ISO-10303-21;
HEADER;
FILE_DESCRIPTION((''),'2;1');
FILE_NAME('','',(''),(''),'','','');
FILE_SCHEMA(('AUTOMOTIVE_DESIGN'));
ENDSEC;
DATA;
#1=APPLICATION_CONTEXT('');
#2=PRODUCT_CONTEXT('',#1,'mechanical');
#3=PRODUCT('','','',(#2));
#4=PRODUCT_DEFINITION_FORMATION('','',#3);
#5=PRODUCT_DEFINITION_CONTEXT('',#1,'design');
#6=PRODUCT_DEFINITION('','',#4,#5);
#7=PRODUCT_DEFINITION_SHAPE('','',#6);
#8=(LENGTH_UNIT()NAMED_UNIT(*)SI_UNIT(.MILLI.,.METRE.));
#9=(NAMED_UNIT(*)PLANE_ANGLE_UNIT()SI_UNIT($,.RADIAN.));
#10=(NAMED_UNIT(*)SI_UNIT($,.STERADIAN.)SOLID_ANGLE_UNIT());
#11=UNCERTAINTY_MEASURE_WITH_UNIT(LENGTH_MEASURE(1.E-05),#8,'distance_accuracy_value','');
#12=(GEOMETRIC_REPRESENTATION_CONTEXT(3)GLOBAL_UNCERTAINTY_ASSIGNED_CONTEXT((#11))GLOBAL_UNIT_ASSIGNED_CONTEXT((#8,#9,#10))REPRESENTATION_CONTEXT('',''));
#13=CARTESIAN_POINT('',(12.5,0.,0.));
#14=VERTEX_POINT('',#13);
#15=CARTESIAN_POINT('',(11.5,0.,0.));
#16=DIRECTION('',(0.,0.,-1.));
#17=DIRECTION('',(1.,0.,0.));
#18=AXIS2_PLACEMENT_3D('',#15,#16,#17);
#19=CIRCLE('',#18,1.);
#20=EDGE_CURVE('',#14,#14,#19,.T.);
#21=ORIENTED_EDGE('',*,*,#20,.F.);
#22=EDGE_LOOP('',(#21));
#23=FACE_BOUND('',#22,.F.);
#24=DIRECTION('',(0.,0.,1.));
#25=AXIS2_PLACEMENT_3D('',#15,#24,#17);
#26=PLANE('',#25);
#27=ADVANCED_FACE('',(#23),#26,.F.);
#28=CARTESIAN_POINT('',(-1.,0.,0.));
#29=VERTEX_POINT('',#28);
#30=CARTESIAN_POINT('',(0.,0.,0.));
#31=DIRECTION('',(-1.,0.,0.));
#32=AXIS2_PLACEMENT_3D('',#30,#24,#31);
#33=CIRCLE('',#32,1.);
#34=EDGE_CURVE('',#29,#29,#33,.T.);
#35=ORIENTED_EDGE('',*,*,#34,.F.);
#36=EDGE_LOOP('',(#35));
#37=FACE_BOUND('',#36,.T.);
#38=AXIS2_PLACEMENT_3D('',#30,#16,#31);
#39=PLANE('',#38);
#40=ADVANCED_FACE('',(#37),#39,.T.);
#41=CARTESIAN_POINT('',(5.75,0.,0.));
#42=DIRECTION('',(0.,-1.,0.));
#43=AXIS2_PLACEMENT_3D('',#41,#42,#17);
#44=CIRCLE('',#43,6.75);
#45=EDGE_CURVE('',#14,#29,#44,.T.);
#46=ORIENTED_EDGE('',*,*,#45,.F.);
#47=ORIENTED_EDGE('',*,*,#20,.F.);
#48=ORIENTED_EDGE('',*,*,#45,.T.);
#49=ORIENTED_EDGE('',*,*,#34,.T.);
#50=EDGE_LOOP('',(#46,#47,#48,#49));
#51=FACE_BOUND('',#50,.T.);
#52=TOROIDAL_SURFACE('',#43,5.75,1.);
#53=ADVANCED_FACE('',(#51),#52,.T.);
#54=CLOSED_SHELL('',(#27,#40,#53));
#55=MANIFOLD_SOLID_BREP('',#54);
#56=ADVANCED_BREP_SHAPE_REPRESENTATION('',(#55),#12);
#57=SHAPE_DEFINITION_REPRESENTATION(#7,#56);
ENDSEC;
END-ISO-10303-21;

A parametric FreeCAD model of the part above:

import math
import FreeCAD as App
import Part
import Sketcher
from FreeCAD import Vector
Q = App.Units.Quantity

doc = App.newDocument("Part")
body = doc.addObject("PartDesign::Body", "Body")

sketch1 = body.newObject("Sketcher::SketchObject", "Sketch")
sketch1.AttachmentSupport = (doc.getObject("XY_Plane"), [""])
sketch1.MapMode = "FlatFace"
sketch1.addGeometry(Part.Circle(Vector(11.5, 0, 0), Vector(0, 0, 1), 1), False)
sketch1.addConstraint([
    Sketcher.Constraint("PointOnObject", 0, 3, -1),
    Sketcher.Constraint("Diameter", 0, Q("2 mm")),
    Sketcher.Constraint("DistanceX", -1, 1, 0, 3, Q("11.5 mm")),
])

sketch2 = body.newObject("Sketcher::SketchObject", "Sketch001")
sketch2.AttachmentSupport = (doc.getObject("XZ_Plane"), [""])
sketch2.MapMode = "FlatFace"
sketch2.addGeometry(Part.ArcOfCircle(Part.Circle(Vector(5.75, 0, 0), Vector(0, 0, 1), 5.75), math.radians(0), math.radians(180)), False)
sketch2.addConstraint([
    Sketcher.Constraint("Coincident", 0, 2, -1, 1),
    Sketcher.Constraint("PointOnObject", 0, 3, -1),
    Sketcher.Constraint("PointOnObject", 0, 1, -1),
    Sketcher.Constraint("Radius", 0, Q("5.75 mm")),
])
doc.recompute()

additivepipe = body.newObject("PartDesign::AdditivePipe", "AdditivePipe")
additivepipe.Profile = sketch1
additivepipe.Spine = (sketch2, ["Edge1"])

doc.recompute()
